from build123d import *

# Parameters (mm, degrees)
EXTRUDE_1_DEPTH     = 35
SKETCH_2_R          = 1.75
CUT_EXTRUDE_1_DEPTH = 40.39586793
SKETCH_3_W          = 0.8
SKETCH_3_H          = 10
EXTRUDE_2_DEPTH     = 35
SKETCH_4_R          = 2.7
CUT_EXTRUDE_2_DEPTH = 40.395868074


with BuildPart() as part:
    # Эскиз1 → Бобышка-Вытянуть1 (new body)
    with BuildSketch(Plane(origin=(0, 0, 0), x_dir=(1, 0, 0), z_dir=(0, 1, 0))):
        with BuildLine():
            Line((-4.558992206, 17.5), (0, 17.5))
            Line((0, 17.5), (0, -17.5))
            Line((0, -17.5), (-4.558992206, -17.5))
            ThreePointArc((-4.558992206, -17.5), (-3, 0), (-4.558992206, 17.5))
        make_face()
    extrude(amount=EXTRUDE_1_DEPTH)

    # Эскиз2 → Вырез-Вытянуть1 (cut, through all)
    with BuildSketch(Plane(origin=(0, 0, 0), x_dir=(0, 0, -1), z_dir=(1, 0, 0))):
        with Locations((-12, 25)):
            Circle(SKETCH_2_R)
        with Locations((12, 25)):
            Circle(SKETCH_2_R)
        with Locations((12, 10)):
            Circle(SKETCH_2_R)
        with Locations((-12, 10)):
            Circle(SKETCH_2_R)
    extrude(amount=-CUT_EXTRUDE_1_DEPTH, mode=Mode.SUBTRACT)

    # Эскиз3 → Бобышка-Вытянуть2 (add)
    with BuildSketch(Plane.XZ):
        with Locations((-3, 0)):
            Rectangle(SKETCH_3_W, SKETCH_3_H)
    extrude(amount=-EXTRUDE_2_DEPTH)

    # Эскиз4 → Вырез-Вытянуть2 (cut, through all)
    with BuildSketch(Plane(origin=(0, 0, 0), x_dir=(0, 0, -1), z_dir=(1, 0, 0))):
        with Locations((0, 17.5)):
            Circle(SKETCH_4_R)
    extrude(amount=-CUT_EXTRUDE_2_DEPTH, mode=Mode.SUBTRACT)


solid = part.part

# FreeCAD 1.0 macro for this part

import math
import FreeCAD as App
import Part
import Sketcher


def add_polygon(sketch, points):
    """Adds a closed chain of lines whose ends are joined by coincident constraints."""
    first, n = sketch.GeometryCount, len(points)
    for a, b in zip(points, points[1:] + points[:1]):
        sketch.addGeometry(Part.LineSegment(App.Vector(*a, 0), App.Vector(*b, 0)), False)
    for i in range(n):
        sketch.addConstraint(Sketcher.Constraint("Coincident", first + i, 2, first + (i + 1) % n, 1))

doc = App.newDocument("Part")
params = doc.addObject("Spreadsheet::Sheet", "Params")
for row, (alias, value) in enumerate([
    ("sketch1_radius", "99 mm"),
    ("sketch1_height", "35 mm"),
    ("pad1_length", "35 mm"),
    ("sketch2_diameter", "3.5 mm"),
    ("sketch3_height", "10 mm"),
    ("sketch3_width", "0.8 mm"),
    ("pad2_length", "35 mm"),
    ("sketch4_diameter", "5.4 mm"),
], start=1):
    params.set(f"A{row}", alias)
    params.set(f"B{row}", "=" + value)
    params.setAlias(f"B{row}", alias)

body = doc.addObject("PartDesign::Body", "Body")

# Sketch on XZ plane
sketch1 = doc.addObject("Sketcher::SketchObject", "Sketch")
body.addObject(sketch1)
sketch1.AttachmentSupport = (doc.XZ_Plane, [""])
sketch1.MapMode = "FlatFace"
sketch1.addGeometry([
    Part.LineSegment(App.Vector(0, -17.5, 0), App.Vector(-4.6, -17.5, 0)),
    Part.ArcOfCircle(Part.Circle(App.Vector(-102, 0, 0), App.Vector(0, 0, 1), 99), math.radians(-10), math.radians(10)),
    Part.LineSegment(App.Vector(-4.6, 17.5, 0), App.Vector(0, 17.5, 0)),
    Part.LineSegment(App.Vector(0, 17.5, 0), App.Vector(0, -17.5, 0)),
], False)
sketch1.addConstraint([
    Sketcher.Constraint("Coincident", 0, 2, 1, 1),
    Sketcher.Constraint("Coincident", 1, 2, 2, 1),
    Sketcher.Constraint("Coincident", 2, 2, 3, 1),
    Sketcher.Constraint("Coincident", 3, 2, 0, 1),
    Sketcher.Constraint("Horizontal", 0),
    Sketcher.Constraint("Horizontal", 2),
    Sketcher.Constraint("Vertical", 3),
    Sketcher.Constraint("Symmetric", 2, 2, 3, 2, -1, 1),
    Sketcher.Constraint("PointOnObject", 1, 3, -1),
    Sketcher.Constraint("Radius", 1, 99.0),
    Sketcher.Constraint("DistanceY", 3, 2, 3, 1, 35.0),
    Sketcher.Constraint("DistanceX", 1, 3, -1, 1, 102.0),
])
sketch1.setExpression("Constraints[9]", "Params.sketch1_radius")
sketch1.setExpression("Constraints[10]", "Params.sketch1_height")
pad1 = doc.addObject("PartDesign::Pad", "Pad")
body.addObject(pad1)
pad1.Profile = sketch1
pad1.setExpression("Length", "Params.pad1_length")
pad1.Reversed = True

# Sketch on YZ plane
sketch2 = doc.addObject("Sketcher::SketchObject", "Sketch001")
body.addObject(sketch2)
sketch2.AttachmentSupport = (doc.YZ_Plane, [""])
sketch2.MapMode = "FlatFace"
sketch2.addGeometry([
    Part.Circle(App.Vector(25, 12, 0), App.Vector(0, 0, 1), 1.8),
    Part.Circle(App.Vector(25, -12, 0), App.Vector(0, 0, 1), 1.8),
    Part.Circle(App.Vector(10, -12, 0), App.Vector(0, 0, 1), 1.8),
    Part.Circle(App.Vector(10, 12, 0), App.Vector(0, 0, 1), 1.8),
], False)
sketch2.addConstraint([
    Sketcher.Constraint("Equal", 0, 1),
    Sketcher.Constraint("Equal", 1, 2),
    Sketcher.Constraint("Equal", 2, 3),
    Sketcher.Constraint("Symmetric", 0, 3, 1, 3, -1),
    Sketcher.Constraint("Symmetric", 2, 3, 3, 3, -1),
    Sketcher.Constraint("Horizontal", 1, 3, 2, 3),
    Sketcher.Constraint("Diameter", 0, 3.5),
    Sketcher.Constraint("DistanceX", -1, 1, 0, 3, 25.0),
    Sketcher.Constraint("DistanceY", -1, 1, 0, 3, 12.0),
    Sketcher.Constraint("DistanceX", -1, 1, 2, 3, 10.0),
])
sketch2.setExpression("Constraints[6]", "Params.sketch2_diameter")
pocket1 = doc.addObject("PartDesign::Pocket", "Pocket")
body.addObject(pocket1)
pocket1.Profile = sketch2
pocket1.Type = "ThroughAll"

# Sketch on XZ plane
sketch3 = doc.addObject("Sketcher::SketchObject", "Sketch002")
body.addObject(sketch3)
sketch3.AttachmentSupport = (doc.XZ_Plane, [""])
sketch3.MapMode = "FlatFace"
add_polygon(sketch3, [(-3.4, 5), (-3.4, -5), (-2.6, -5), (-2.6, 5)])  # lines 0-3
sketch3.addConstraint([
    Sketcher.Constraint("Vertical", 0),
    Sketcher.Constraint("Horizontal", 1),
    Sketcher.Constraint("Vertical", 2),
    Sketcher.Constraint("Horizontal", 3),
    Sketcher.Constraint("DistanceY", 0, 2, 0, 1, 10.0),
    Sketcher.Constraint("DistanceX", 1, 1, 1, 2, 0.8),
    Sketcher.Constraint("DistanceY", 0, 2, -1, 1, 5.0),
    Sketcher.Constraint("DistanceX", 0, 2, -1, 1, 3.4),
])
sketch3.setExpression("Constraints[8]", "Params.sketch3_height")
sketch3.setExpression("Constraints[9]", "Params.sketch3_width")
pad2 = doc.addObject("PartDesign::Pad", "Pad001")
body.addObject(pad2)
pad2.Profile = sketch3
pad2.setExpression("Length", "Params.pad2_length")
pad2.Reversed = True

# Sketch on YZ plane
sketch4 = doc.addObject("Sketcher::SketchObject", "Sketch003")
body.addObject(sketch4)
sketch4.AttachmentSupport = (doc.YZ_Plane, [""])
sketch4.MapMode = "FlatFace"
sketch4.addGeometry(Part.Circle(App.Vector(17.5, 0, 0), App.Vector(0, 0, 1), 2.7), False)
sketch4.addConstraint([
    Sketcher.Constraint("PointOnObject", 0, 3, -1),
    Sketcher.Constraint("Diameter", 0, 5.4),
    Sketcher.Constraint("DistanceX", -1, 1, 0, 3, 17.5),
])
sketch4.setExpression("Constraints[1]", "Params.sketch4_diameter")
pocket2 = doc.addObject("PartDesign::Pocket", "Pocket001")
body.addObject(pocket2)
pocket2.Profile = sketch4
pocket2.Type = "ThroughAll"

doc.recompute()
